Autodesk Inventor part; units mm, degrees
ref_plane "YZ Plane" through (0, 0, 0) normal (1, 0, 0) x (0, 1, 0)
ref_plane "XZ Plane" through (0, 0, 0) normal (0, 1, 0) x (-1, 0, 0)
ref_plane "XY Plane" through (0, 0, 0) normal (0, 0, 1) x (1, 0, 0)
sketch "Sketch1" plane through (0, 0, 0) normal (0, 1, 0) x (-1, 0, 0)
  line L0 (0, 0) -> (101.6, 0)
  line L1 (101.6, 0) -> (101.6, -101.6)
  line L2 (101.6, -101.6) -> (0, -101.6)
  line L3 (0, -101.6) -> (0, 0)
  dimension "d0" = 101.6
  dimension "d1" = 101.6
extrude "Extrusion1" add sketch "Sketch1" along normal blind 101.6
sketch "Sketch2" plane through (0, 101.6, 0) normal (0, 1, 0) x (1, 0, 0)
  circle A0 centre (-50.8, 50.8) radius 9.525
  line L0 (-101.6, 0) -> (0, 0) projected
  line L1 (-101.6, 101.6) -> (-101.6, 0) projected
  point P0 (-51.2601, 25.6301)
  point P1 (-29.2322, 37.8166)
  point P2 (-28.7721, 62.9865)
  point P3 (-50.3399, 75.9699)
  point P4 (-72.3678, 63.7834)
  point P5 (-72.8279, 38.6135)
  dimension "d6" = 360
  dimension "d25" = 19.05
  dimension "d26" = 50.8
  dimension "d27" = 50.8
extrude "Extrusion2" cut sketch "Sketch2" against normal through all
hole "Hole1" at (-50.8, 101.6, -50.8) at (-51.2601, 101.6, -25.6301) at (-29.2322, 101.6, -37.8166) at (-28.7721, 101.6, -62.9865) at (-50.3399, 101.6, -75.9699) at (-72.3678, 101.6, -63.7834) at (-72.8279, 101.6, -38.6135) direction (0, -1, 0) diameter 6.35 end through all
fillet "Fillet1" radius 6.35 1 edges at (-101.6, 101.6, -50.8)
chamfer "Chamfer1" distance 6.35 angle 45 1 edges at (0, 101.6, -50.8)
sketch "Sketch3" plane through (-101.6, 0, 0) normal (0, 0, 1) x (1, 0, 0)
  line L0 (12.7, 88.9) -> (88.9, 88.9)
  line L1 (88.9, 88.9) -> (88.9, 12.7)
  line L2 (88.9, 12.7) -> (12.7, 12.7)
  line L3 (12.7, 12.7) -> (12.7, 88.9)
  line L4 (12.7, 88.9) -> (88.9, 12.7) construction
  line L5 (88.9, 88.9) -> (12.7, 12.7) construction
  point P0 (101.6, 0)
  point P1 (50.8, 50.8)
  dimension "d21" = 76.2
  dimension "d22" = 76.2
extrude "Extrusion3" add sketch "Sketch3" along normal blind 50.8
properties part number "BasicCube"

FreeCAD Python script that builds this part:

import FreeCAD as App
import Part
import Sketcher
from FreeCAD import Vector
Q = App.Units.Quantity


def edges_at(feature, points):
    """Names of the edges that pass closest to the given points."""
    edges = feature.Shape.Edges
    near = lambda p: min(range(len(edges)), key=lambda i: edges[i].distToShape(Part.Vertex(*p))[0])
    return sorted({f"Edge{near(p) + 1}" for p in points})


def add_polygon(sketch, points):
    """Adds a closed chain of lines whose ends are joined by coincident constraints."""
    first, n = sketch.GeometryCount, len(points)
    for a, b in zip(points, points[1:] + points[:1]):
        sketch.addGeometry(Part.LineSegment(App.Vector(*a, 0), App.Vector(*b, 0)), False)
    for i in range(n):
        sketch.addConstraint(Sketcher.Constraint("Coincident", first + i, 2, first + (i + 1) % n, 1))

doc = App.newDocument("Part")
body = doc.addObject("PartDesign::Body", "Body")

sketch1 = doc.addObject("Sketcher::SketchObject", "Sketch")
body.addObject(sketch1)
sketch1.AttachmentSupport = (doc.XZ_Plane, [""])
sketch1.MapMode = "FlatFace"
add_polygon(sketch1, [(-101.6, 0), (0, 0), (0, -101.6), (-101.6, -101.6)])
sketch1.addConstraint([
    Sketcher.Constraint("Horizontal", 0),
    Sketcher.Constraint("Vertical", 1),
    Sketcher.Constraint("Horizontal", 2),
    Sketcher.Constraint("Vertical", 3),
    Sketcher.Constraint("Coincident", 0, 2, -1, 1),
    Sketcher.Constraint("Equal", 2, 1),
    Sketcher.Constraint("DistanceX", 0, 1, 0, 2, Q("4 in")),
])
pad1 = doc.addObject("PartDesign::Pad", "Pad")
body.addObject(pad1)
pad1.Profile = sketch1
pad1.Length = Q("4 in")
pad1.Reversed = True

sketch2 = doc.addObject("Sketcher::SketchObject", "Sketch001")
body.addObject(sketch2)
sketch2.AttachmentSupport = (doc.XZ_Plane, [""])
sketch2.MapMode = "FlatFace"
sketch2.AttachmentOffset = App.Placement(Vector(0, 0, -4 * 25.4), App.Rotation())
sketch2.addGeometry(Part.Circle(Vector(-50.8, -50.8, 0), Vector(0, 0, 1), 9.525), False)
sketch2.addConstraint([
    Sketcher.Constraint("Diameter", 0, Q("0.75 in")),
    Sketcher.Constraint("DistanceX", 0, 3, -1, 1, Q("2 in")),
    Sketcher.Constraint("DistanceY", 0, 3, -1, 1, Q("2 in")),
])
pocket1 = doc.addObject("PartDesign::Pocket", "Pocket")
body.addObject(pocket1)
pocket1.Profile = sketch2
pocket1.Type = "ThroughAll"
pocket1.Reversed = True

sketch3 = doc.addObject("Sketcher::SketchObject", "Sketch002")
body.addObject(sketch3)
sketch3.AttachmentSupport = (doc.XZ_Plane, [""])
sketch3.MapMode = "FlatFace"
sketch3.AttachmentOffset = App.Placement(Vector(0, 0, -4 * 25.4), App.Rotation())
sketch3.addGeometry([
    Part.Circle(Vector(-50.8, -50.8, 0), Vector(0, 0, 1), 3.175),
    Part.Circle(Vector(-51.2601, -25.6301, 0), Vector(0, 0, 1), 3.175),
    Part.Circle(Vector(-29.2322, -37.8166, 0), Vector(0, 0, 1), 3.175),
    Part.Circle(Vector(-28.7721, -62.9865, 0), Vector(0, 0, 1), 3.175),
    Part.Circle(Vector(-50.3399, -75.9699, 0), Vector(0, 0, 1), 3.175),
    Part.Circle(Vector(-72.3678, -63.7834, 0), Vector(0, 0, 1), 3.175),
    Part.Circle(Vector(-72.8279, -38.6135, 0), Vector(0, 0, 1), 3.175),
], False)
sketch3.addConstraint([
    Sketcher.Constraint("Equal", 0, 1),
    Sketcher.Constraint("Equal", 1, 2),
    Sketcher.Constraint("Equal", 2, 3),
    Sketcher.Constraint("Equal", 3, 4),
    Sketcher.Constraint("Equal", 4, 5),
    Sketcher.Constraint("Equal", 5, 6),
    Sketcher.Constraint("Diameter", 0, Q("0.25 in")),
    Sketcher.Constraint("DistanceX", 0, 3, -1, 1, Q("2 in")),
    Sketcher.Constraint("DistanceY", 0, 3, -1, 1, Q("2 in")),
    Sketcher.Constraint("DistanceX", 4, 3, 2, 3, Q("0.831 in")),
    Sketcher.Constraint("DistanceX", 5, 3, 1, 3, Q("0.831 in")),
    Sketcher.Constraint("DistanceY", 4, 3, 2, 3, Q("1.5021 in")),
    Sketcher.Constraint("DistanceY", 5, 3, 1, 3, Q("1.5021 in")),
    Sketcher.Constraint("DistanceX", 1, 3, -1, 1, Q("2.0181102 in")),
    Sketcher.Constraint("DistanceY", 1, 3, -1, 1, Q("25.63 mm")),
    Sketcher.Constraint("DistanceX", 2, 3, -1, 1, Q("29.2322 mm")),
    Sketcher.Constraint("DistanceY", 2, 3, -1, 1, Q("37.8166 mm")),
    Sketcher.Constraint("DistanceX", 3, 3, -1, 1, Q("28.772 mm")),
    Sketcher.Constraint("DistanceY", 3, 3, -1, 1, Q("62.9865 mm")),
    Sketcher.Constraint("DistanceX", 6, 3, -1, 1, Q("72.828 mm")),
    Sketcher.Constraint("DistanceY", 6, 3, -1, 1, Q("38.6135 mm")),
])
doc.recompute()
hole = doc.addObject("PartDesign::Hole", "Hole")
body.addObject(hole)
hole.Profile = sketch3
hole.ThreadType = "None"
hole.Diameter = Q("0.25 in")
hole.DepthType = "ThroughAll"
hole.Reversed = True
doc.recompute()

fillet = doc.addObject("PartDesign::Fillet", "Fillet")
body.addObject(fillet)
fillet.Base = (hole, edges_at(hole, [(-101.6, 101.6, -50.8)]))
fillet.Radius = Q("0.25 in")
doc.recompute()

chamfer = doc.addObject("PartDesign::Chamfer", "Chamfer")
body.addObject(chamfer)
chamfer.Base = (fillet, edges_at(fillet, [(0, 101.6, -50.8)]))
chamfer.Size = Q("0.25 in")

sketch4 = doc.addObject("Sketcher::SketchObject", "Sketch003")
body.addObject(sketch4)
sketch4.AttachmentSupport = (doc.XY_Plane, [""])
sketch4.MapMode = "FlatFace"
add_polygon(sketch4, [(-12.7, 88.9), (-88.9, 88.9), (-88.9, 12.7), (-12.7, 12.7)])
sketch4.addConstraint([
    Sketcher.Constraint("Horizontal", 0),
    Sketcher.Constraint("Vertical", 1),
    Sketcher.Constraint("Horizontal", 2),
    Sketcher.Constraint("Vertical", 3),
    Sketcher.Constraint("Equal", 2, 1),
    Sketcher.Constraint("DistanceX", 0, 2, 0, 1, Q("3 in")),
    Sketcher.Constraint("DistanceX", 0, 2, -1, 1, Q("3.5 in")),
    Sketcher.Constraint("DistanceY", -1, 1, 0, 2, Q("3.5 in")),
])
pad2 = doc.addObject("PartDesign::Pad", "Pad001")
body.addObject(pad2)
pad2.Profile = sketch4
pad2.Length = Q("2 in")

doc.recompute()
